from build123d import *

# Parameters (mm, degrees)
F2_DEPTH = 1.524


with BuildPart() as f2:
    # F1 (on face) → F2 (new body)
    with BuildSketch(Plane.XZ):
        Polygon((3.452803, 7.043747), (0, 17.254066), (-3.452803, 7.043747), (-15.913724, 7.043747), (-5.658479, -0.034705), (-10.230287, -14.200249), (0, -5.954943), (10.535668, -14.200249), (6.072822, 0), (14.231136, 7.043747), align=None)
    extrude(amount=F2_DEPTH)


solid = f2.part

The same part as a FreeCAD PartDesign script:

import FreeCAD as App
import Part
import Sketcher

V = App.Vector
Q = App.Units.Quantity

doc = App.newDocument("Part")
body = doc.addObject("PartDesign::Body", "Body")

# Sketch on XZ plane
sketch1 = body.newObject("Sketcher::SketchObject", "Sketch")
sketch1.AttachmentSupport = (doc.getObject("XZ_Plane"), [""])
sketch1.MapMode = "FlatFace"
sketch1.addGeometry(Part.LineSegment(V(3.452803, 7.043747, 0), V(0, 17.254066, 0)), False)
sketch1.addGeometry(Part.LineSegment(V(0, 17.254066, 0), V(-3.452803, 7.043747, 0)), False)
sketch1.addGeometry(Part.LineSegment(V(-3.452803, 7.043747, 0), V(-15.913724, 7.043747, 0)), False)
sketch1.addGeometry(Part.LineSegment(V(-15.913724, 7.043747, 0), V(-5.658479, -0.034705, 0)), False)
sketch1.addGeometry(Part.LineSegment(V(-5.658479, -0.034705, 0), V(-10.230287, -14.200249, 0)), False)
sketch1.addGeometry(Part.LineSegment(V(-10.230287, -14.200249, 0), V(0, -5.954943, 0)), False)
sketch1.addGeometry(Part.LineSegment(V(0, -5.954943, 0), V(10.535668, -14.200249, 0)), False)
sketch1.addGeometry(Part.LineSegment(V(10.535668, -14.200249, 0), V(6.072822, 0, 0)), False)
sketch1.addGeometry(Part.LineSegment(V(6.072822, 0, 0), V(14.231136, 7.043747, 0)), False)
sketch1.addGeometry(Part.LineSegment(V(14.231136, 7.043747, 0), V(3.452803, 7.043747, 0)), False)
sketch1.addConstraint(Sketcher.Constraint("Coincident", 0, 2, 1, 1))
sketch1.addConstraint(Sketcher.Constraint("Coincident", 1, 2, 2, 1))
sketch1.addConstraint(Sketcher.Constraint("Coincident", 2, 2, 3, 1))
sketch1.addConstraint(Sketcher.Constraint("Coincident", 3, 2, 4, 1))
sketch1.addConstraint(Sketcher.Constraint("Coincident", 4, 2, 5, 1))
sketch1.addConstraint(Sketcher.Constraint("Coincident", 5, 2, 6, 1))
sketch1.addConstraint(Sketcher.Constraint("Coincident", 6, 2, 7, 1))
sketch1.addConstraint(Sketcher.Constraint("Coincident", 7, 2, 8, 1))
sketch1.addConstraint(Sketcher.Constraint("Coincident", 8, 2, 9, 1))
sketch1.addConstraint(Sketcher.Constraint("Coincident", 9, 2, 0, 1))
sketch1.addConstraint(Sketcher.Constraint("Horizontal", 2))
sketch1.addConstraint(Sketcher.Constraint("Horizontal", 9))
sketch1.addConstraint(Sketcher.Constraint("Symmetric", 1, 2, 9, 2, -2))
sketch1.addConstraint(Sketcher.Constraint("PointOnObject", 0, 2, -2))
sketch1.addConstraint(Sketcher.Constraint("PointOnObject", 5, 2, -2))
sketch1.addConstraint(Sketcher.Constraint("PointOnObject", 7, 2, -1))
sketch1.addConstraint(Sketcher.Constraint("Horizontal", 4, 2, 6, 2))
sketch1.addConstraint(Sketcher.Constraint("Equal", 4, 7))
sketch1.addConstraint(Sketcher.Constraint("Equal", 1, 8))
sketch1.addConstraint(Sketcher.Constraint("Distance", 5, Q("13.1394 mm")))
sketch1.addConstraint(Sketcher.Constraint("DistanceX", 2, 2, 2, 1, Q("12.460921 mm")))
sketch1.addConstraint(Sketcher.Constraint("DistanceX", 3, 2, 7, 2, Q("11.731301 mm")))
sketch1.addConstraint(Sketcher.Constraint("Distance", 3, Q("12.46092 mm")))
sketch1.addConstraint(Sketcher.Constraint("Distance", 4, Q("14.885028 mm")))
sketch1.addConstraint(Sketcher.Constraint("Distance", 6, Q("13.378541 mm")))
sketch1.addConstraint(Sketcher.Constraint("DistanceX", 9, 2, 9, 1, Q("10.778333 mm")))
sketch1.addConstraint(Sketcher.Constraint("DistanceX", 3, 2, -1, 1, Q("5.658479 mm")))
sketch1.addConstraint(Sketcher.Constraint("DistanceY", 4, 2, -1, 1, Q("14.200249 mm")))
sketch1.addConstraint(Sketcher.Constraint("DistanceY", 1, 2, 0, 2, Q("10.210319 mm")))
pad1 = body.newObject("PartDesign::Pad", "Pad")
pad1.Profile = sketch1
pad1.Length = Q("0.06 in")

doc.recompute()
